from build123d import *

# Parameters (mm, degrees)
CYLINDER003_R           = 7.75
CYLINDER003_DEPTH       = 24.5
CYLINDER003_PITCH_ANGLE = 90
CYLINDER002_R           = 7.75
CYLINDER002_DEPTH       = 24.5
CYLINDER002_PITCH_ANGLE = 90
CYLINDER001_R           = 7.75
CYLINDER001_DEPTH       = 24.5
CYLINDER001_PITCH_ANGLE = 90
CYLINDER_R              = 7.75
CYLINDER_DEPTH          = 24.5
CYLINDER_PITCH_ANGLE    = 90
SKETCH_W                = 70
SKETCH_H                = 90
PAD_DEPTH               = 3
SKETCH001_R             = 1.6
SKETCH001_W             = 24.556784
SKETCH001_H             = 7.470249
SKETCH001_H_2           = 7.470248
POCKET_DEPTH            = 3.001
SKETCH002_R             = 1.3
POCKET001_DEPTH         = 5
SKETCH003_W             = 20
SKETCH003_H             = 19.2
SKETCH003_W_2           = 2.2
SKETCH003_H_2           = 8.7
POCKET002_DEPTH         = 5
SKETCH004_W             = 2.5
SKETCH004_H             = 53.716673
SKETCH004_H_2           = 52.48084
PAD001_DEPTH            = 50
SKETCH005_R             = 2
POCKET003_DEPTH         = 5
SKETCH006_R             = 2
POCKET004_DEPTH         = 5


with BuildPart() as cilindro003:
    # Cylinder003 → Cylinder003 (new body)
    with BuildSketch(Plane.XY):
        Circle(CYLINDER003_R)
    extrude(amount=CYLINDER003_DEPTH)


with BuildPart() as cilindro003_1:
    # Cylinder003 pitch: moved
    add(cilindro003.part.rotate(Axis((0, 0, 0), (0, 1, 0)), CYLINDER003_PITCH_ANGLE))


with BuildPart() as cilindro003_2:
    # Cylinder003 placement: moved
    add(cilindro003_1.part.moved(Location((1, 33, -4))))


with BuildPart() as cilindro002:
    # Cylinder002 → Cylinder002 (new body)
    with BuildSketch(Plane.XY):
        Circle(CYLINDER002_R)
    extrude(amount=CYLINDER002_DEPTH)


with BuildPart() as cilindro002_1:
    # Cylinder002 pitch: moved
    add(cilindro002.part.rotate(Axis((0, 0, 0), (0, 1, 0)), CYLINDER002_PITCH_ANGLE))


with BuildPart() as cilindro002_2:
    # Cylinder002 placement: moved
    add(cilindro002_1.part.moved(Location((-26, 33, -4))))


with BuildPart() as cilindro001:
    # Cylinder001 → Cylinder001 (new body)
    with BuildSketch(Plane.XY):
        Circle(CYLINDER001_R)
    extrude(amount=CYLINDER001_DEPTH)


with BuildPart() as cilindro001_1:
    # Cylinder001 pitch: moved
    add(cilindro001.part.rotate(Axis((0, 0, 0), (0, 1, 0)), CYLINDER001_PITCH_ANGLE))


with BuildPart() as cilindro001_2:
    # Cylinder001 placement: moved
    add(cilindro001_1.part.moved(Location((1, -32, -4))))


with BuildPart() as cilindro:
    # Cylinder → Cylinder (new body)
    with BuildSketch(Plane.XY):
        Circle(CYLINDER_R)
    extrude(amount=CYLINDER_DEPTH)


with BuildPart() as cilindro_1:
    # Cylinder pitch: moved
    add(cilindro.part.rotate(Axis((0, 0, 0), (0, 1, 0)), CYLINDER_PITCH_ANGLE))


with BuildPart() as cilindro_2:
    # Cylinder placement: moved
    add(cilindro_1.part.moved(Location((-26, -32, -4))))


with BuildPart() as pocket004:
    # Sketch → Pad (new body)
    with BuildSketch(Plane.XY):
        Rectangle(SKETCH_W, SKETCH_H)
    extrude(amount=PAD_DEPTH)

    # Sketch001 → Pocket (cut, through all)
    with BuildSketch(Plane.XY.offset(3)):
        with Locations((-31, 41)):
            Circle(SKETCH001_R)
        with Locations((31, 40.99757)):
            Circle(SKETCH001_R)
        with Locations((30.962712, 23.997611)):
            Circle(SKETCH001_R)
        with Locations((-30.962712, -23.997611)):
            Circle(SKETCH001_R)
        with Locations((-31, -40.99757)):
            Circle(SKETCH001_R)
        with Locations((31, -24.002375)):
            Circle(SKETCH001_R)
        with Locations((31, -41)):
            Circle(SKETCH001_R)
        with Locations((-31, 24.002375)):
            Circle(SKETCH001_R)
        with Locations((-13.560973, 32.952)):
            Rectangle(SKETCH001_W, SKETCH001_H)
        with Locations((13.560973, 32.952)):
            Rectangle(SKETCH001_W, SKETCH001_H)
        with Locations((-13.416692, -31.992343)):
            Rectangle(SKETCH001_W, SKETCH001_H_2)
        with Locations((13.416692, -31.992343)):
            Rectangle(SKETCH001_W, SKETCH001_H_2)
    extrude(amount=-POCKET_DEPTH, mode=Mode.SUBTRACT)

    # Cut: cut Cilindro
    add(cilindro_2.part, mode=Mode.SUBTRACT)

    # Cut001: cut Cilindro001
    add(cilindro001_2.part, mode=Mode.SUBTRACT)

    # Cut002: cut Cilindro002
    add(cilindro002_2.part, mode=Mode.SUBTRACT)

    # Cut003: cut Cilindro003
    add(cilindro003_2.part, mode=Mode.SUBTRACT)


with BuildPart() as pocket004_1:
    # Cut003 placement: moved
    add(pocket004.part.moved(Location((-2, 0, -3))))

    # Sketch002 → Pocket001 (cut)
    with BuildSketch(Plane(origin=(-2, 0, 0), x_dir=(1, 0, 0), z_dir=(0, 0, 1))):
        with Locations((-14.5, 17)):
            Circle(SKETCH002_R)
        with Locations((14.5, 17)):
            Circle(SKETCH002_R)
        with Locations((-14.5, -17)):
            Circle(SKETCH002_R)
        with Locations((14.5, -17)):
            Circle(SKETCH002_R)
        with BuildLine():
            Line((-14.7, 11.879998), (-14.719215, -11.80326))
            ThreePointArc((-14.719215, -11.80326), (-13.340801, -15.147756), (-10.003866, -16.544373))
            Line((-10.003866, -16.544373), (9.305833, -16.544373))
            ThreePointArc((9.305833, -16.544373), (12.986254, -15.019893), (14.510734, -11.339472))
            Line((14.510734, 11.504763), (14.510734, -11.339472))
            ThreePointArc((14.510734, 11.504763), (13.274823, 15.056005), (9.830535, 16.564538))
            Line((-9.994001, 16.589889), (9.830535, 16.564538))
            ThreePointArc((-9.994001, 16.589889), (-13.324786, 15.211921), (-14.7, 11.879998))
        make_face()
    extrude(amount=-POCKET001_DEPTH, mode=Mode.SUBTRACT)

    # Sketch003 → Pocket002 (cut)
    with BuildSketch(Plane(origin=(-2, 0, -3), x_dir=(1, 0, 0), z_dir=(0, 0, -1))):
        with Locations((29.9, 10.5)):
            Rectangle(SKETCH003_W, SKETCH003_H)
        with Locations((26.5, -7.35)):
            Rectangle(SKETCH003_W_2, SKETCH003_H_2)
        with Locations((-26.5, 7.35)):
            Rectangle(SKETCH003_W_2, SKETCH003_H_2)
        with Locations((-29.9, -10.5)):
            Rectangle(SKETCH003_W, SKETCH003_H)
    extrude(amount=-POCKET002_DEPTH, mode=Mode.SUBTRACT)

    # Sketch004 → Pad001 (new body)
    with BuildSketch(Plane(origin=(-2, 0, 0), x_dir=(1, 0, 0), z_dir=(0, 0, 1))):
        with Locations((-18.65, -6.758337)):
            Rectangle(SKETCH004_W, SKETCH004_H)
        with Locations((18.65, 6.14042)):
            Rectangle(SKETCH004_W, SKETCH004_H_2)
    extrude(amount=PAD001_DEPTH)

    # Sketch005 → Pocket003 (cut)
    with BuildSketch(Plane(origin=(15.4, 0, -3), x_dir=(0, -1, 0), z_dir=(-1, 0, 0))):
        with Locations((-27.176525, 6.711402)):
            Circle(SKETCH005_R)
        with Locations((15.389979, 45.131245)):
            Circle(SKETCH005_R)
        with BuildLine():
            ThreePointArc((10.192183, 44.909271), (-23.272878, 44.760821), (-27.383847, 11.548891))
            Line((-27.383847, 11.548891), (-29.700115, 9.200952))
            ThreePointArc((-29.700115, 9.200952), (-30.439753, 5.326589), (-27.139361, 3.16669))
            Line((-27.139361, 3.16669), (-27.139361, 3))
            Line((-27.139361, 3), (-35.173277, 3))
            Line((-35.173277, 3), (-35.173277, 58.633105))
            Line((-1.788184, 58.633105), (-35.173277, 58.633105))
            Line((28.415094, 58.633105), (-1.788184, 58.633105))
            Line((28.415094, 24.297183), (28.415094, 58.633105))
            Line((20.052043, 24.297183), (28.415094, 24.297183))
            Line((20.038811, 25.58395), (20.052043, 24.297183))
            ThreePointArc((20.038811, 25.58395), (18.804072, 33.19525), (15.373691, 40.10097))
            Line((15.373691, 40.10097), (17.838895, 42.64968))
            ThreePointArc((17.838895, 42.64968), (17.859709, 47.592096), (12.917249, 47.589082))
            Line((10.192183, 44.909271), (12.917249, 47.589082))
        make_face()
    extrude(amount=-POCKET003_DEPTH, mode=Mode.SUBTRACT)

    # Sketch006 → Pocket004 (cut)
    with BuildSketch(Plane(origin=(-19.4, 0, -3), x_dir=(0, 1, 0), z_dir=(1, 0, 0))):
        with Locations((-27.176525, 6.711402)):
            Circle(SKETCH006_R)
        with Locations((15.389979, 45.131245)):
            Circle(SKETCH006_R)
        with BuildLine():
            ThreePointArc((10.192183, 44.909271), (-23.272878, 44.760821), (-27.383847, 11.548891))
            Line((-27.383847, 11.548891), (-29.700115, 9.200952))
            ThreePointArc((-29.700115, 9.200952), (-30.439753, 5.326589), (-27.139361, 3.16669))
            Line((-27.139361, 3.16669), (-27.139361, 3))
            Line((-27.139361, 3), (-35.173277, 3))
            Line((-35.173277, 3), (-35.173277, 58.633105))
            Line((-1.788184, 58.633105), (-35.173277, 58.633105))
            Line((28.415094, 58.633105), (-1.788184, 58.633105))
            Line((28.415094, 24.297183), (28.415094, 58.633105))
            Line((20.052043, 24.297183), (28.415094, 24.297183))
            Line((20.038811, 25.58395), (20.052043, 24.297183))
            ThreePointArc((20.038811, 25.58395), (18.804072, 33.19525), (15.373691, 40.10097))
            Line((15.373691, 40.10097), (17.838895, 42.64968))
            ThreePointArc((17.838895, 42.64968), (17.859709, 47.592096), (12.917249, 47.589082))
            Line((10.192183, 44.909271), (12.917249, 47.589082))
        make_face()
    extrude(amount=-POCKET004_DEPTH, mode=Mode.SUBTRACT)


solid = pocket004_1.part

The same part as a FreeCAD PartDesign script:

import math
import FreeCAD as App
import Part
import Sketcher

V = App.Vector
Q = App.Units.Quantity


def add_polygon(sketch, points):
    """Adds a closed chain of lines whose ends are joined by coincident constraints."""
    first, n = sketch.GeometryCount, len(points)
    for a, b in zip(points, points[1:] + points[:1]):
        sketch.addGeometry(Part.LineSegment(App.Vector(*a, 0), App.Vector(*b, 0)), False)
    for i in range(n):
        sketch.addConstraint(Sketcher.Constraint("Coincident", first + i, 2, first + (i + 1) % n, 1))

doc = App.newDocument("Part")
body = doc.addObject("PartDesign::Body", "Body")

sketch1 = body.newObject("Sketcher::SketchObject", "Sketch")
sketch1.AttachmentSupport = (doc.getObject("XY_Plane"), [""])
sketch1.MapMode = "FlatFace"
sketch1.addGeometry(Part.Circle(V(0, 0, 0), V(0, 0, 1), 8), False)
sketch1.addConstraint(Sketcher.Constraint("Coincident", 0, 3, -1, 1))
sketch1.addConstraint(Sketcher.Constraint("Diameter", 0, Q("15.5 mm")))
pad1 = body.newObject("PartDesign::Pad", "Pad")
pad1.Profile = sketch1
pad1.Length = 24.5
body2 = doc.addObject("PartDesign::Body", "Body001")
doc.recompute()

body.Placement = App.Placement(V(0, 0, 0), App.Rotation(V(0, 1, 0), 90))
boolean = body2.newObject("PartDesign::Boolean", "Boolean")
boolean.Type = "Fuse"
boolean.addObjects([body])
body3 = doc.addObject("PartDesign::Body", "Body002")
doc.recompute()

body2.Placement = App.Placement(V(1, 33, -4), App.Rotation(V(0, 0, 1), 0))
boolean2 = body3.newObject("PartDesign::Boolean", "Boolean001")
boolean2.Type = "Fuse"
boolean2.addObjects([body2])
body4 = doc.addObject("PartDesign::Body", "Body003")

sketch2 = body4.newObject("Sketcher::SketchObject", "Sketch001")
sketch2.AttachmentSupport = (doc.getObject("XY_Plane003"), [""])
sketch2.MapMode = "FlatFace"
sketch2.addGeometry(Part.Circle(V(0, 0, 0), V(0, 0, 1), 8), False)
sketch2.addConstraint(Sketcher.Constraint("Coincident", 0, 3, -1, 1))
sketch2.addConstraint(Sketcher.Constraint("Diameter", 0, Q("15.5 mm")))
pad2 = body4.newObject("PartDesign::Pad", "Pad001")
pad2.Profile = sketch2
pad2.Length = 24.5
body5 = doc.addObject("PartDesign::Body", "Body004")
doc.recompute()

body4.Placement = App.Placement(V(0, 0, 0), App.Rotation(V(0, 1, 0), 90))
boolean3 = body5.newObject("PartDesign::Boolean", "Boolean002")
boolean3.Type = "Fuse"
boolean3.addObjects([body4])
body6 = doc.addObject("PartDesign::Body", "Body005")
doc.recompute()

body5.Placement = App.Placement(V(-26, 33, -4), App.Rotation(V(0, 0, 1), 0))
boolean4 = body6.newObject("PartDesign::Boolean", "Boolean003")
boolean4.Type = "Fuse"
boolean4.addObjects([body5])
body7 = doc.addObject("PartDesign::Body", "Body006")

sketch3 = body7.newObject("Sketcher::SketchObject", "Sketch002")
sketch3.AttachmentSupport = (doc.getObject("XY_Plane006"), [""])
sketch3.MapMode = "FlatFace"
sketch3.addGeometry(Part.Circle(V(0, 0, 0), V(0, 0, 1), 8), False)
sketch3.addConstraint(Sketcher.Constraint("Coincident", 0, 3, -1, 1))
sketch3.addConstraint(Sketcher.Constraint("Diameter", 0, Q("15.5 mm")))
pad3 = body7.newObject("PartDesign::Pad", "Pad002")
pad3.Profile = sketch3
pad3.Length = 24.5
body8 = doc.addObject("PartDesign::Body", "Body007")
doc.recompute()

body7.Placement = App.Placement(V(0, 0, 0), App.Rotation(V(0, 1, 0), 90))
boolean5 = body8.newObject("PartDesign::Boolean", "Boolean004")
boolean5.Type = "Fuse"
boolean5.addObjects([body7])
body9 = doc.addObject("PartDesign::Body", "Body008")
doc.recompute()

body8.Placement = App.Placement(V(1, -32, -4), App.Rotation(V(0, 0, 1), 0))
boolean6 = body9.newObject("PartDesign::Boolean", "Boolean005")
boolean6.Type = "Fuse"
boolean6.addObjects([body8])
body10 = doc.addObject("PartDesign::Body", "Body009")

sketch4 = body10.newObject("Sketcher::SketchObject", "Sketch003")
sketch4.AttachmentSupport = (doc.getObject("XY_Plane009"), [""])
sketch4.MapMode = "FlatFace"
sketch4.addGeometry(Part.Circle(V(0, 0, 0), V(0, 0, 1), 8), False)
sketch4.addConstraint(Sketcher.Constraint("Coincident", 0, 3, -1, 1))
sketch4.addConstraint(Sketcher.Constraint("Diameter", 0, Q("15.5 mm")))
pad4 = body10.newObject("PartDesign::Pad", "Pad003")
pad4.Profile = sketch4
pad4.Length = 24.5
body11 = doc.addObject("PartDesign::Body", "Body010")
doc.recompute()

body10.Placement = App.Placement(V(0, 0, 0), App.Rotation(V(0, 1, 0), 90))
boolean7 = body11.newObject("PartDesign::Boolean", "Boolean006")
boolean7.Type = "Fuse"
boolean7.addObjects([body10])
body12 = doc.addObject("PartDesign::Body", "Body011")
doc.recompute()

body11.Placement = App.Placement(V(-26, -32, -4), App.Rotation(V(0, 0, 1), 0))
boolean8 = body12.newObject("PartDesign::Boolean", "Boolean007")
boolean8.Type = "Fuse"
boolean8.addObjects([body11])
body13 = doc.addObject("PartDesign::Body", "Body012")

sketch5 = body13.newObject("Sketcher::SketchObject", "Sketch004")
sketch5.AttachmentSupport = (doc.getObject("XY_Plane012"), [""])
sketch5.MapMode = "FlatFace"
add_polygon(sketch5, [(-35, 45), (-35, -45), (35, -45), (35, 45)])
sketch5.addConstraint(Sketcher.Constraint("Vertical", 0))
sketch5.addConstraint(Sketcher.Constraint("Horizontal", 1))
sketch5.addConstraint(Sketcher.Constraint("Vertical", 2))
sketch5.addConstraint(Sketcher.Constraint("Horizontal", 3))
sketch5.addConstraint(Sketcher.Constraint("Symmetric", 0, 2, 2, 2, -1, 1))
sketch5.addConstraint(Sketcher.Constraint("DistanceX", 1, 1, 1, 2, Q("70 mm")))
sketch5.addConstraint(Sketcher.Constraint("DistanceY", 0, 2, 0, 1, Q("90 mm")))
pad5 = body13.newObject("PartDesign::Pad", "Pad004")
pad5.Profile = sketch5
pad5.Length = 3

sketch6 = body13.newObject("Sketcher::SketchObject", "Sketch005")
sketch6.AttachmentSupport = (doc.getObject("XY_Plane012"), [""])
sketch6.MapMode = "FlatFace"
sketch6.AttachmentOffset = App.Placement(V(0, 0, 3), App.Rotation())
sketch6.addGeometry(Part.Circle(V(-31, 41, 0), V(0, 0, 1), 1.6), False)
sketch6.addGeometry(Part.Circle(V(31, 41, 0), V(0, 0, 1), 1.6), False)
sketch6.addGeometry(Part.Circle(V(31, 24, 0), V(0, 0, 1), 1.6), False)
sketch6.addGeometry(Part.Circle(V(-31, -24, 0), V(0, 0, 1), 1.6), False)
sketch6.addGeometry(Part.Circle(V(-31, -41, 0), V(0, 0, 1), 1.6), False)
sketch6.addGeometry(Part.Circle(V(31, -24, 0), V(0, 0, 1), 1.6), False)
sketch6.addGeometry(Part.Circle(V(31, -41, 0), V(0, 0, 1), 1.6), False)
sketch6.addGeometry(Part.Circle(V(-31, 24, 0), V(0, 0, 1), 1.6), False)
add_polygon(sketch6, [(-25.8, 36.7), (-25.8, 29.2), (-1.3, 29.2), (-1.3, 36.7)])
add_polygon(sketch6, [(1.3, 36.7), (1.3, 29.2), (25.8, 29.2), (25.8, 36.7)])
add_polygon(sketch6, [(-25.7, -28.3), (-25.7, -35.7), (-1.1, -35.7), (-1.1, -28.3)])
add_polygon(sketch6, [(1.1, -28.3), (1.1, -35.7), (25.7, -35.7), (25.7, -28.3)])
sketch6.addConstraint(Sketcher.Constraint("Vertical", 8))
sketch6.addConstraint(Sketcher.Constraint("Horizontal", 9))
sketch6.addConstraint(Sketcher.Constraint("Vertical", 10))
sketch6.addConstraint(Sketcher.Constraint("Horizontal", 11))
sketch6.addConstraint(Sketcher.Constraint("Vertical", 12))
sketch6.addConstraint(Sketcher.Constraint("Horizontal", 13))
sketch6.addConstraint(Sketcher.Constraint("Vertical", 14))
sketch6.addConstraint(Sketcher.Constraint("Horizontal", 15))
sketch6.addConstraint(Sketcher.Constraint("Vertical", 16))
sketch6.addConstraint(Sketcher.Constraint("Horizontal", 17))
sketch6.addConstraint(Sketcher.Constraint("Vertical", 18))
sketch6.addConstraint(Sketcher.Constraint("Horizontal", 19))
sketch6.addConstraint(Sketcher.Constraint("Vertical", 20))
sketch6.addConstraint(Sketcher.Constraint("Horizontal", 21))
sketch6.addConstraint(Sketcher.Constraint("Vertical", 22))
sketch6.addConstraint(Sketcher.Constraint("Horizontal", 23))
sketch6.addConstraint(Sketcher.Constraint("Equal", 0, 1))
sketch6.addConstraint(Sketcher.Constraint("Equal", 1, 2))
sketch6.addConstraint(Sketcher.Constraint("Equal", 2, 3))
sketch6.addConstraint(Sketcher.Constraint("Equal", 3, 4))
sketch6.addConstraint(Sketcher.Constraint("Equal", 4, 5))
sketch6.addConstraint(Sketcher.Constraint("Equal", 5, 6))
sketch6.addConstraint(Sketcher.Constraint("Equal", 6, 7))
sketch6.addConstraint(Sketcher.Constraint("Symmetric", 2, 3, 3, 3, -1, 1))
sketch6.addConstraint(Sketcher.Constraint("Symmetric", 1, 3, 4, 3, -1, 1))
sketch6.addConstraint(Sketcher.Constraint("Symmetric", 0, 3, 6, 3, -1, 1))
sketch6.addConstraint(Sketcher.Constraint("Symmetric", 5, 3, 7, 3, -1, 1))
sketch6.addConstraint(Sketcher.Constraint("Symmetric", 9, 2, 12, 2, -2))
sketch6.addConstraint(Sketcher.Constraint("Symmetric", 11, 2, 14, 2, -2))
sketch6.addConstraint(Sketcher.Constraint("Symmetric", 17, 2, 20, 2, -2))
sketch6.addConstraint(Sketcher.Constraint("Symmetric", 19, 2, 22, 2, -2))
sketch6.addConstraint(Sketcher.Constraint("Vertical", 0, 3, 4, 3))
sketch6.addConstraint(Sketcher.Constraint("Vertical", 1, 3, 5, 3))
sketch6.addConstraint(Sketcher.Constraint("Equal", 15, 17))
sketch6.addConstraint(Sketcher.Constraint("Equal", 14, 16))
sketch6.addConstraint(Sketcher.Constraint("Diameter", 0, Q("3.2 mm")))
sketch6.addConstraint(Sketcher.Constraint("DistanceX", 0, 3, -1, 1, Q("31 mm")))
sketch6.addConstraint(Sketcher.Constraint("DistanceY", -1, 1, 0, 3, Q("41 mm")))
sketch6.addConstraint(Sketcher.Constraint("DistanceY", 8, 2, 8, 1, Q("7.470249 mm")))
sketch6.addConstraint(Sketcher.Constraint("DistanceX", 17, 2, -1, 1, Q("1.1383 mm")))
sketch6.addConstraint(Sketcher.Constraint("DistanceY", 7, 3, 8, 2, Q("5.2145 mm")))
sketch6.addConstraint(Sketcher.Constraint("DistanceX", 9, 1, 9, 2, Q("24.556784 mm")))
sketch6.addConstraint(Sketcher.Constraint("DistanceY", -1, 1, 1, 3, Q("40.99757 mm")))
sketch6.addConstraint(Sketcher.Constraint("DistanceX", -1, 1, 2, 3, Q("30.962712 mm")))
sketch6.addConstraint(Sketcher.Constraint("DistanceY", -1, 1, 2, 3, Q("23.997611 mm")))
sketch6.addConstraint(Sketcher.Constraint("DistanceX", 9, 2, -1, 1, Q("1.282581 mm")))
sketch6.addConstraint(Sketcher.Constraint("DistanceY", 18, 2, -1, 1, Q("28.257219 mm")))
sketch6.addConstraint(Sketcher.Constraint("DistanceY", 16, 2, 5, 3, Q("11.725092 mm")))
pocket1 = body13.newObject("PartDesign::Pocket", "Pocket")
pocket1.Profile = sketch6
pocket1.Type = "ThroughAll"
doc.recompute()

boolean9 = body13.newObject("PartDesign::Boolean", "Boolean008")
boolean9.Type = "Cut"
boolean9.addObjects([body12])
doc.recompute()

boolean10 = body13.newObject("PartDesign::Boolean", "Boolean009")
boolean10.Type = "Cut"
boolean10.addObjects([body9])
doc.recompute()

boolean11 = body13.newObject("PartDesign::Boolean", "Boolean010")
boolean11.Type = "Cut"
boolean11.addObjects([body6])
doc.recompute()

boolean12 = body13.newObject("PartDesign::Boolean", "Boolean011")
boolean12.Type = "Cut"
boolean12.addObjects([body3])
body14 = doc.addObject("PartDesign::Body", "Body013")
doc.recompute()

body13.Placement = App.Placement(V(-2, 0, -3), App.Rotation(V(0, 0, 1), 0))
boolean13 = body14.newObject("PartDesign::Boolean", "Boolean012")
boolean13.Type = "Fuse"
boolean13.addObjects([body13])

sketch7 = body14.newObject("Sketcher::SketchObject", "Sketch006")
sketch7.AttachmentSupport = (doc.getObject("XY_Plane013"), [""])
sketch7.MapMode = "FlatFace"
sketch7.addGeometry(Part.Circle(V(-16.5, 17, 0), V(0, 0, 1), 1.3), False)
sketch7.addGeometry(Part.Circle(V(12.5, 17, 0), V(0, 0, 1), 1.3), False)
sketch7.addGeometry(Part.Circle(V(-16.5, -17, 0), V(0, 0, 1), 1.3), False)
sketch7.addGeometry(Part.Circle(V(12.5, -17, 0), V(0, 0, 1), 1.3), False)
sketch7.addGeometry(Part.LineSegment(V(-16.7, 11.879998, 0), V(-16.719215, -11.80326, 0)), False)
sketch7.addGeometry(Part.ArcOfCircle(Part.Circle(V(-11.981895, -11.807103, 0), V(0, 0, 1), 4.737321), math.radians(179.953526), math.radians(269.734271)), False)
sketch7.addGeometry(Part.LineSegment(V(-12.003866, -16.544373, 0), V(7.305833, -16.544373, 0)), False)
sketch7.addGeometry(Part.ArcOfCircle(Part.Circle(V(7.305834, -11.339473, 0), V(0, 0, 1), 5.2049), math.radians(-90.000008), math.radians(0.000008)), False)
sketch7.addGeometry(Part.LineSegment(V(12.510734, -11.339472, 0), V(12.510734, 11.504763, 0)), False)
sketch7.addGeometry(Part.ArcOfCircle(Part.Circle(V(7.824524, 11.864541, 0), V(0, 0, 1), 4.700001), math.radians(-4.390201), math.radians(89.926719)), False)
sketch7.addGeometry(Part.LineSegment(V(7.830535, 16.564538, 0), V(-11.994001, 16.589889, 0)), False)
sketch7.addGeometry(Part.ArcOfCircle(Part.Circle(V(-12.000011, 11.889894, 0), V(0, 0, 1), 4.699999), math.radians(89.92673), math.radians(180.120636)), False)
sketch7.addConstraint(Sketcher.Constraint("Coincident", 4, 2, 5, 1))
sketch7.addConstraint(Sketcher.Constraint("Coincident", 5, 2, 6, 1))
sketch7.addConstraint(Sketcher.Constraint("Coincident", 6, 2, 7, 1))
sketch7.addConstraint(Sketcher.Constraint("Coincident", 7, 2, 8, 1))
sketch7.addConstraint(Sketcher.Constraint("Coincident", 8, 2, 9, 1))
sketch7.addConstraint(Sketcher.Constraint("Coincident", 9, 2, 10, 1))
sketch7.addConstraint(Sketcher.Constraint("Coincident", 10, 2, 11, 1))
sketch7.addConstraint(Sketcher.Constraint("Coincident", 11, 2, 4, 1))
sketch7.addConstraint(Sketcher.Constraint("Horizontal", 6))
sketch7.addConstraint(Sketcher.Constraint("Vertical", 8))
sketch7.addConstraint(Sketcher.Constraint("Diameter", 0, Q("2.6 mm")))
sketch7.addConstraint(Sketcher.Constraint("Diameter", 1, Q("2.6 mm")))
sketch7.addConstraint(Sketcher.Constraint("Diameter", 2, Q("2.6 mm")))
sketch7.addConstraint(Sketcher.Constraint("Diameter", 3, Q("2.6 mm")))
sketch7.addConstraint(Sketcher.Constraint("Radius", 9, Q("4.700001 mm")))
sketch7.addConstraint(Sketcher.Constraint("Radius", 11, Q("4.699999 mm")))
sketch7.addConstraint(Sketcher.Constraint("DistanceY", -1, 1, 0, 3, Q("17 mm")))
sketch7.addConstraint(Sketcher.Constraint("DistanceY", -1, 1, 1, 3, Q("17 mm")))
sketch7.addConstraint(Sketcher.Constraint("DistanceY", 2, 3, -1, 1, Q("17 mm")))
sketch7.addConstraint(Sketcher.Constraint("DistanceY", 3, 3, -1, 1, Q("17 mm")))
sketch7.addConstraint(Sketcher.Constraint("DistanceX", 0, 3, 1, 3, Q("29 mm")))
sketch7.addConstraint(Sketcher.Constraint("DistanceX", 2, 3, 1, 3, Q("29 mm")))
sketch7.addConstraint(Sketcher.Constraint("DistanceX", 2, 3, 3, 3, Q("29 mm")))
sketch7.addConstraint(Sketcher.Constraint("DistanceX", 0, 3, -1, 1, Q("16.5 mm")))
sketch7.addConstraint(Sketcher.Constraint("DistanceX", 11, 2, -1, 1, Q("16.7 mm")))
sketch7.addConstraint(Sketcher.Constraint("Radius", 7, Q("5.2049 mm")))
sketch7.addConstraint(Sketcher.Constraint("DistanceY", -1, 1, 11, 2, Q("11.879998 mm")))
sketch7.addConstraint(Sketcher.Constraint("Radius", 5, Q("4.737321 mm")))
sketch7.addConstraint(Sketcher.Constraint("DistanceX", 6, 1, 6, 2, Q("19.309699 mm")))
sketch7.addConstraint(Sketcher.Constraint("DistanceX", 10, 2, -1, 1, Q("11.994001 mm")))
sketch7.addConstraint(Sketcher.Constraint("DistanceX", 5, 2, 7, 3, Q("19.3097 mm")))
sketch7.addConstraint(Sketcher.Constraint("DistanceY", 6, 2, 7, 2, Q("5.204901 mm")))
sketch7.addConstraint(Sketcher.Constraint("DistanceX", 9, 2, 8, 2, Q("4.680199 mm")))
sketch7.addConstraint(Sketcher.Constraint("DistanceY", 5, 3, 11, 2, Q("23.687101 mm")))
sketch7.addConstraint(Sketcher.Constraint("DistanceY", 8, 1, 8, 2, Q("22.844235 mm")))
sketch7.addConstraint(Sketcher.Constraint("DistanceY", -1, 1, 9, 3, Q("11.864541 mm")))
sketch7.addConstraint(Sketcher.Constraint("DistanceY", 4, 2, -1, 1, Q("11.80326 mm")))
sketch7.addConstraint(Sketcher.Constraint("DistanceY", -1, 1, 10, 2, Q("16.589889 mm")))
sketch7.addConstraint(Sketcher.Constraint("DistanceX", 5, 3, 7, 3, Q("19.287729 mm")))
sketch7.addConstraint(Sketcher.Constraint("Distance", 10, Q("19.824552 mm")))
pocket2 = body14.newObject("PartDesign::Pocket", "Pocket001")
pocket2.Profile = sketch7
pocket2.Length = 5

sketch8 = body14.newObject("Sketcher::SketchObject", "Sketch007")
sketch8.AttachmentSupport = (doc.getObject("XY_Plane013"), [""])
sketch8.MapMode = "FlatFace"
sketch8.AttachmentOffset = App.Placement(V(0, 0, -3), App.Rotation())
add_polygon(sketch8, [(17.9, -20.1), (17.9, -0.9), (37.9, -0.9), (37.9, -20.1)])
add_polygon(sketch8, [(23.4, 3), (23.4, 11.7), (25.6, 11.7), (25.6, 3)])
add_polygon(sketch8, [(-29.6, -11.7), (-29.6, -3), (-27.4, -3), (-27.4, -11.7)])
add_polygon(sketch8, [(-41.9, 0.9), (-41.9, 20.1), (-21.9, 20.1), (-21.9, 0.9)])
sketch8.addConstraint(Sketcher.Constraint("Vertical", 0))
sketch8.addConstraint(Sketcher.Constraint("Horizontal", 1))
sketch8.addConstraint(Sketcher.Constraint("Vertical", 2))
sketch8.addConstraint(Sketcher.Constraint("Horizontal", 3))
sketch8.addConstraint(Sketcher.Constraint("Vertical", 4))
sketch8.addConstraint(Sketcher.Constraint("Horizontal", 5))
sketch8.addConstraint(Sketcher.Constraint("Vertical", 6))
sketch8.addConstraint(Sketcher.Constraint("Horizontal", 7))
sketch8.addConstraint(Sketcher.Constraint("Vertical", 8))
sketch8.addConstraint(Sketcher.Constraint("Horizontal", 9))
sketch8.addConstraint(Sketcher.Constraint("Vertical", 10))
sketch8.addConstraint(Sketcher.Constraint("Horizontal", 11))
sketch8.addConstraint(Sketcher.Constraint("Vertical", 12))
sketch8.addConstraint(Sketcher.Constraint("Horizontal", 13))
sketch8.addConstraint(Sketcher.Constraint("Vertical", 14))
sketch8.addConstraint(Sketcher.Constraint("Horizontal", 15))
sketch8.addConstraint(Sketcher.Constraint("Equal", 7, 9))
sketch8.addConstraint(Sketcher.Constraint("Equal", 3, 13))
sketch8.addConstraint(Sketcher.Constraint("Equal", 6, 8))
sketch8.addConstraint(Sketcher.Constraint("Equal", 2, 12))
sketch8.addConstraint(Sketcher.Constraint("DistanceX", 1, 1, 1, 2, Q("20 mm")))
sketch8.addConstraint(Sketcher.Constraint("DistanceX", 5, 1, 5, 2, Q("2.2 mm")))
sketch8.addConstraint(Sketcher.Constraint("DistanceY", 0, 1, 0, 2, Q("19.2 mm")))
sketch8.addConstraint(Sketcher.Constraint("DistanceY", 4, 1, 4, 2, Q("8.7 mm")))
sketch8.addConstraint(Sketcher.Constraint("DistanceY", -1, 1, 6, 2, Q("3 mm")))
sketch8.addConstraint(Sketcher.Constraint("DistanceY", 8, 2, -1, 1, Q("3 mm")))
sketch8.addConstraint(Sketcher.Constraint("DistanceX", 8, 2, 7, 2, Q("53 mm")))
sketch8.addConstraint(Sketcher.Constraint("DistanceY", 0, 2, 12, 2, Q("21 mm")))
sketch8.addConstraint(Sketcher.Constraint("DistanceX", -1, 1, 0, 2, Q("17.9 mm")))
sketch8.addConstraint(Sketcher.Constraint("DistanceY", 0, 2, -1, 1, Q("0.9 mm")))
sketch8.addConstraint(Sketcher.Constraint("DistanceX", -1, 1, 4, 2, Q("23.4 mm")))
sketch8.addConstraint(Sketcher.Constraint("DistanceX", 12, 2, -1, 1, Q("41.9 mm")))
pocket3 = body14.newObject("PartDesign::Pocket", "Pocket002")
pocket3.Profile = sketch8
pocket3.Length = 5
pocket3.Reversed = True

sketch9 = body14.newObject("Sketcher::SketchObject", "Sketch008")
sketch9.AttachmentSupport = (doc.getObject("XY_Plane013"), [""])
sketch9.MapMode = "FlatFace"
add_polygon(sketch9, [(-21.9, 20.1), (-21.9, -33.6), (-19.4, -33.6), (-19.4, 20.1)])
add_polygon(sketch9, [(15.4, 32.4), (15.4, -20.1), (17.9, -20.1), (17.9, 32.4)])
sketch9.addConstraint(Sketcher.Constraint("Vertical", 0))
sketch9.addConstraint(Sketcher.Constraint("Horizontal", 1))
sketch9.addConstraint(Sketcher.Constraint("Vertical", 2))
sketch9.addConstraint(Sketcher.Constraint("Horizontal", 3))
sketch9.addConstraint(Sketcher.Constraint("Vertical", 4))
sketch9.addConstraint(Sketcher.Constraint("Horizontal", 5))
sketch9.addConstraint(Sketcher.Constraint("Vertical", 6))
sketch9.addConstraint(Sketcher.Constraint("Horizontal", 7))
sketch9.addConstraint(Sketcher.Constraint("Equal", 3, 5))
sketch9.addConstraint(Sketcher.Constraint("DistanceX", 1, 1, 1, 2, Q("2.5 mm")))
sketch9.addConstraint(Sketcher.Constraint("DistanceX", 0, 2, -1, 1, Q("21.9 mm")))
sketch9.addConstraint(Sketcher.Constraint("DistanceY", -1, 1, 2, 2, Q("20.099999 mm")))
sketch9.addConstraint(Sketcher.Constraint("DistanceX", -1, 1, 4, 2, Q("15.4 mm")))
sketch9.addConstraint(Sketcher.Constraint("DistanceY", 4, 2, -1, 1, Q("20.1 mm")))
sketch9.addConstraint(Sketcher.Constraint("DistanceY", 4, 2, 4, 1, Q("52.48084 mm")))
sketch9.addConstraint(Sketcher.Constraint("DistanceY", 0, 2, 0, 1, Q("53.716673 mm")))
pad6 = body14.newObject("PartDesign::Pad", "Pad005")
pad6.Profile = sketch9
pad6.Length = 50

sketch10 = body14.newObject("Sketcher::SketchObject", "Sketch009")
sketch10.AttachmentSupport = (doc.getObject("YZ_Plane013"), [""])
sketch10.MapMode = "FlatFace"
sketch10.AttachmentOffset = App.Placement(V(0, 0, 15.4), App.Rotation())
sketch10.addGeometry(Part.Circle(V(27.176525, 3.711402, 0), V(0, 0, 1), 2), False)
sketch10.addGeometry(Part.Circle(V(-15.389979, 42.131245, 0), V(0, 0, 1), 2), False)
sketch10.addGeometry(Part.ArcOfCircle(Part.Circle(V(6.455992, 22.818836, 0), V(0, 0, 1), 25.329951), math.radians(-34.288658), math.radians(131.090672)), False)
sketch10.addGeometry(Part.LineSegment(V(-10.192183, 41.909271, 0), V(-12.917249, 44.589082, 0)), False)
sketch10.addGeometry(Part.ArcOfCircle(Part.Circle(V(-15.389979, 42.131245, 0), V(0, 0, 1), 3.486453), math.radians(44.826939), math.radians(225.379396)), False)
sketch10.addGeometry(Part.LineSegment(V(-17.838895, 39.64968, 0), V(-15.373691, 37.10097, 0)), False)
sketch10.addGeometry(Part.ArcOfCircle(Part.Circle(V(5.740542, 22.307711, 0), V(0, 0, 1), 25.780833), math.radians(144.983772), math.radians(179.38607)), False)
sketch10.addGeometry(Part.LineSegment(V(-20.038811, 22.58395, 0), V(-20.052043, 21.297183, 0)), False)
sketch10.addGeometry(Part.LineSegment(V(-20.052043, 21.297183, 0), V(-28.415094, 21.297183, 0)), False)
sketch10.addGeometry(Part.LineSegment(V(-28.415094, 21.297183, 0), V(-28.415094, 55.633105, 0)), False)
sketch10.addGeometry(Part.LineSegment(V(-28.415094, 55.633105, 0), V(35.173277, 55.633105, 0)), False)
sketch10.addGeometry(Part.LineSegment(V(35.173277, 55.633105, 0), V(35.173277, 0, 0)), False)
sketch10.addGeometry(Part.LineSegment(V(35.173277, 0, 0), V(27.139361, 0, 0)), False)
sketch10.addGeometry(Part.LineSegment(V(27.139361, 0, 0), V(27.139361, 0.16669, 0)), False)
sketch10.addGeometry(Part.ArcOfCircle(Part.Circle(V(27.176525, 3.711402, 0), V(0, 0, 1), 3.544907), math.radians(-90.600684), math.radians(44.610955)), False)
sketch10.addGeometry(Part.LineSegment(V(29.700115, 6.200952, 0), V(27.383847, 8.548891, 0)), False)
sketch10.addConstraint(Sketcher.Constraint("Coincident", 2, 2, 3, 1))
sketch10.addConstraint(Sketcher.Constraint("Coincident", 3, 2, 4, 1))
sketch10.addConstraint(Sketcher.Constraint("Coincident", 4, 2, 5, 1))
sketch10.addConstraint(Sketcher.Constraint("Coincident", 5, 2, 6, 1))
sketch10.addConstraint(Sketcher.Constraint("Coincident", 6, 2, 7, 1))
sketch10.addConstraint(Sketcher.Constraint("Coincident", 7, 2, 8, 1))
sketch10.addConstraint(Sketcher.Constraint("Coincident", 8, 2, 9, 1))
sketch10.addConstraint(Sketcher.Constraint("Coincident", 9, 2, 10, 1))
sketch10.addConstraint(Sketcher.Constraint("Coincident", 10, 2, 11, 1))
sketch10.addConstraint(Sketcher.Constraint("Coincident", 11, 2, 12, 1))
sketch10.addConstraint(Sketcher.Constraint("Coincident", 12, 2, 13, 1))
sketch10.addConstraint(Sketcher.Constraint("Coincident", 13, 2, 14, 1))
sketch10.addConstraint(Sketcher.Constraint("Coincident", 14, 2, 15, 1))
sketch10.addConstraint(Sketcher.Constraint("Coincident", 15, 2, 2, 1))
sketch10.addConstraint(Sketcher.Constraint("Horizontal", 8))
sketch10.addConstraint(Sketcher.Constraint("Vertical", 9))
sketch10.addConstraint(Sketcher.Constraint("Horizontal", 10))
sketch10.addConstraint(Sketcher.Constraint("Vertical", 11))
sketch10.addConstraint(Sketcher.Constraint("Horizontal", 12))
sketch10.addConstraint(Sketcher.Constraint("Vertical", 13))
sketch10.addConstraint(Sketcher.Constraint("Coincident", 4, 3, 1, 3))
sketch10.addConstraint(Sketcher.Constraint("Coincident", 14, 3, 0, 3))
sketch10.addConstraint(Sketcher.Constraint("PointOnObject", 11, 2, -1))
sketch10.addConstraint(Sketcher.Constraint("Diameter", 0, Q("4 mm")))
sketch10.addConstraint(Sketcher.Constraint("Diameter", 1, Q("4 mm")))
sketch10.addConstraint(Sketcher.Constraint("Radius", 2, Q("25.329951 mm")))
sketch10.addConstraint(Sketcher.Constraint("Radius", 4, Q("3.486453 mm")))
sketch10.addConstraint(Sketcher.Constraint("Radius", 6, Q("25.780833 mm")))
sketch10.addConstraint(Sketcher.Constraint("Radius", 14, Q("3.544907 mm")))
sketch10.addConstraint(Sketcher.Constraint("DistanceX", 8, 2, 8, 1, Q("8.363051 mm")))
sketch10.addConstraint(Sketcher.Constraint("DistanceX", 10, 1, 10, 2, Q("63.588371 mm")))
sketch10.addConstraint(Sketcher.Constraint("DistanceY", 9, 1, 9, 2, Q("34.335922 mm")))
sketch10.addConstraint(Sketcher.Constraint("DistanceY", 13, 1, 13, 2, Q("0.16669 mm")))
sketch10.addConstraint(Sketcher.Constraint("DistanceY", 5, 2, 2, 2, Q("4.808301 mm")))
sketch10.addConstraint(Sketcher.Constraint("DistanceX", 8, 2, 4, 2, Q("10.576199 mm")))
sketch10.addConstraint(Sketcher.Constraint("DistanceY", 13, 2, 15, 2, Q("8.382201 mm")))
sketch10.addConstraint(Sketcher.Constraint("Distance", 3, Q("3.821959 mm")))
sketch10.addConstraint(Sketcher.Constraint("Distance", 15, Q("3.298168 mm")))
sketch10.addConstraint(Sketcher.Constraint("DistanceX", 12, 2, 12, 1, Q("8.033916 mm")))
sketch10.addConstraint(Sketcher.Constraint("DistanceY", 11, 2, 11, 1, Q("55.633105 mm")))
sketch10.addConstraint(Sketcher.Constraint("DistanceX", 1, 3, -1, 1, Q("15.389979 mm")))
sketch10.addConstraint(Sketcher.Constraint("DistanceY", -1, 1, 6, 3, Q("22.307711 mm")))
sketch10.addConstraint(Sketcher.Constraint("DistanceY", -1, 1, 2, 2, Q("41.909271 mm")))
sketch10.addConstraint(Sketcher.Constraint("DistanceX", 3, 2, -1, 1, Q("12.917249 mm")))
sketch10.addConstraint(Sketcher.Constraint("DistanceY", -1, 1, 3, 2, Q("44.589082 mm")))
sketch10.addConstraint(Sketcher.Constraint("DistanceY", -1, 1, 4, 2, Q("39.64968 mm")))
sketch10.addConstraint(Sketcher.Constraint("DistanceX", 5, 2, -1, 1, Q("15.373691 mm")))
sketch10.addConstraint(Sketcher.Constraint("DistanceX", 6, 2, -1, 1, Q("20.038811 mm")))
sketch10.addConstraint(Sketcher.Constraint("DistanceY", -1, 1, 14, 2, Q("6.200952 mm")))
sketch10.addConstraint(Sketcher.Constraint("DistanceX", 1, 3, 2, 3, Q("21.845971 mm")))
pocket4 = body14.newObject("PartDesign::Pocket", "Pocket003")
pocket4.Profile = sketch10
pocket4.Length = 5
pocket4.Reversed = True

sketch11 = body14.newObject("Sketcher::SketchObject", "Sketch010")
sketch11.AttachmentSupport = (doc.getObject("YZ_Plane013"), [""])
sketch11.MapMode = "FlatFace"
sketch11.AttachmentOffset = App.Placement(V(0, 0, -19.4), App.Rotation())
sketch11.addGeometry(Part.Circle(V(-27.176525, 3.711402, 0), V(0, 0, 1), 2), False)
sketch11.addGeometry(Part.Circle(V(15.389979, 42.131245, 0), V(0, 0, 1), 2), False)
sketch11.addGeometry(Part.ArcOfCircle(Part.Circle(V(-6.455992, 22.818836, 0), V(0, 0, 1), 25.329951), math.radians(48.909328), math.radians(214.288658)), False)
sketch11.addGeometry(Part.LineSegment(V(10.192183, 41.909271, 0), V(12.917249, 44.589082, 0)), False)
sketch11.addGeometry(Part.ArcOfCircle(Part.Circle(V(15.389979, 42.131245, 0), V(0, 0, 1), 3.486453), math.radians(-45.379396), math.radians(135.173061)), False)
sketch11.addGeometry(Part.LineSegment(V(17.838895, 39.64968, 0), V(15.373691, 37.10097, 0)), False)
sketch11.addGeometry(Part.ArcOfCircle(Part.Circle(V(-5.740542, 22.307711, 0), V(0, 0, 1), 25.780833), math.radians(0.61393), math.radians(35.016228)), False)
sketch11.addGeometry(Part.LineSegment(V(20.038811, 22.58395, 0), V(20.052043, 21.297183, 0)), False)
sketch11.addGeometry(Part.LineSegment(V(20.052043, 21.297183, 0), V(28.415094, 21.297183, 0)), False)
sketch11.addGeometry(Part.LineSegment(V(28.415094, 21.297183, 0), V(28.415094, 55.633105, 0)), False)
sketch11.addGeometry(Part.LineSegment(V(28.415094, 55.633105, 0), V(-35.173277, 55.633105, 0)), False)
sketch11.addGeometry(Part.LineSegment(V(-35.173277, 55.633105, 0), V(-35.173277, 0, 0)), False)
sketch11.addGeometry(Part.LineSegment(V(-35.173277, 0, 0), V(-27.139361, 0, 0)), False)
sketch11.addGeometry(Part.LineSegment(V(-27.139361, 0, 0), V(-27.139361, 0.16669, 0)), False)
sketch11.addGeometry(Part.ArcOfCircle(Part.Circle(V(-27.176525, 3.711402, 0), V(0, 0, 1), 3.544907), math.radians(135.389045), math.radians(270.600684)), False)
sketch11.addGeometry(Part.LineSegment(V(-29.700115, 6.200952, 0), V(-27.383847, 8.548891, 0)), False)
sketch11.addConstraint(Sketcher.Constraint("Coincident", 2, 1, 3, 1))
sketch11.addConstraint(Sketcher.Constraint("Coincident", 3, 2, 4, 2))
sketch11.addConstraint(Sketcher.Constraint("Coincident", 4, 1, 5, 1))
sketch11.addConstraint(Sketcher.Constraint("Coincident", 5, 2, 6, 2))
sketch11.addConstraint(Sketcher.Constraint("Coincident", 6, 1, 7, 1))
sketch11.addConstraint(Sketcher.Constraint("Coincident", 7, 2, 8, 1))
sketch11.addConstraint(Sketcher.Constraint("Coincident", 8, 2, 9, 1))
sketch11.addConstraint(Sketcher.Constraint("Coincident", 9, 2, 10, 1))
sketch11.addConstraint(Sketcher.Constraint("Coincident", 10, 2, 11, 1))
sketch11.addConstraint(Sketcher.Constraint("Coincident", 11, 2, 12, 1))
sketch11.addConstraint(Sketcher.Constraint("Coincident", 12, 2, 13, 1))
sketch11.addConstraint(Sketcher.Constraint("Coincident", 13, 2, 14, 2))
sketch11.addConstraint(Sketcher.Constraint("Coincident", 14, 1, 15, 1))
sketch11.addConstraint(Sketcher.Constraint("Coincident", 15, 2, 2, 2))
sketch11.addConstraint(Sketcher.Constraint("Horizontal", 8))
sketch11.addConstraint(Sketcher.Constraint("Vertical", 9))
sketch11.addConstraint(Sketcher.Constraint("Horizontal", 10))
sketch11.addConstraint(Sketcher.Constraint("Vertical", 11))
sketch11.addConstraint(Sketcher.Constraint("Horizontal", 12))
sketch11.addConstraint(Sketcher.Constraint("Vertical", 13))
sketch11.addConstraint(Sketcher.Constraint("Coincident", 4, 3, 1, 3))
sketch11.addConstraint(Sketcher.Constraint("Coincident", 14, 3, 0, 3))
sketch11.addConstraint(Sketcher.Constraint("PointOnObject", 11, 2, -1))
sketch11.addConstraint(Sketcher.Constraint("Diameter", 0, Q("4 mm")))
sketch11.addConstraint(Sketcher.Constraint("Diameter", 1, Q("4 mm")))
sketch11.addConstraint(Sketcher.Constraint("Radius", 2, Q("25.329951 mm")))
sketch11.addConstraint(Sketcher.Constraint("Radius", 4, Q("3.486453 mm")))
sketch11.addConstraint(Sketcher.Constraint("Radius", 6, Q("25.780833 mm")))
sketch11.addConstraint(Sketcher.Constraint("Radius", 14, Q("3.544907 mm")))
sketch11.addConstraint(Sketcher.Constraint("DistanceX", 8, 1, 8, 2, Q("8.363051 mm")))
sketch11.addConstraint(Sketcher.Constraint("DistanceX", 10, 2, 10, 1, Q("63.588371 mm")))
sketch11.addConstraint(Sketcher.Constraint("DistanceY", 9, 1, 9, 2, Q("34.335922 mm")))
sketch11.addConstraint(Sketcher.Constraint("DistanceY", 13, 1, 13, 2, Q("0.16669 mm")))
sketch11.addConstraint(Sketcher.Constraint("DistanceY", 5, 2, 2, 1, Q("4.808301 mm")))
sketch11.addConstraint(Sketcher.Constraint("DistanceX", 4, 1, 8, 2, Q("10.576199 mm")))
sketch11.addConstraint(Sketcher.Constraint("DistanceY", 13, 2, 15, 2, Q("8.382201 mm")))
sketch11.addConstraint(Sketcher.Constraint("Distance", 3, Q("3.821959 mm")))
sketch11.addConstraint(Sketcher.Constraint("Distance", 15, Q("3.298168 mm")))
sketch11.addConstraint(Sketcher.Constraint("DistanceX", 12, 1, 12, 2, Q("8.033916 mm")))
sketch11.addConstraint(Sketcher.Constraint("DistanceY", 11, 2, 11, 1, Q("55.633105 mm")))
sketch11.addConstraint(Sketcher.Constraint("DistanceX", -1, 1, 1, 3, Q("15.389979 mm")))
sketch11.addConstraint(Sketcher.Constraint("DistanceY", -1, 1, 6, 3, Q("22.307711 mm")))
sketch11.addConstraint(Sketcher.Constraint("DistanceY", -1, 1, 2, 1, Q("41.909271 mm")))
sketch11.addConstraint(Sketcher.Constraint("DistanceX", -1, 1, 3, 2, Q("12.917249 mm")))
sketch11.addConstraint(Sketcher.Constraint("DistanceY", -1, 1, 3, 2, Q("44.589082 mm")))
sketch11.addConstraint(Sketcher.Constraint("DistanceY", -1, 1, 4, 1, Q("39.64968 mm")))
sketch11.addConstraint(Sketcher.Constraint("DistanceX", -1, 1, 5, 2, Q("15.373691 mm")))
sketch11.addConstraint(Sketcher.Constraint("DistanceX", -1, 1, 6, 1, Q("20.038811 mm")))
sketch11.addConstraint(Sketcher.Constraint("DistanceY", -1, 1, 14, 1, Q("6.200952 mm")))
sketch11.addConstraint(Sketcher.Constraint("DistanceX", 2, 3, 1, 3, Q("21.845971 mm")))
pocket5 = body14.newObject("PartDesign::Pocket", "Pocket004")
pocket5.Profile = sketch11
pocket5.Length = 5

doc.recompute()
